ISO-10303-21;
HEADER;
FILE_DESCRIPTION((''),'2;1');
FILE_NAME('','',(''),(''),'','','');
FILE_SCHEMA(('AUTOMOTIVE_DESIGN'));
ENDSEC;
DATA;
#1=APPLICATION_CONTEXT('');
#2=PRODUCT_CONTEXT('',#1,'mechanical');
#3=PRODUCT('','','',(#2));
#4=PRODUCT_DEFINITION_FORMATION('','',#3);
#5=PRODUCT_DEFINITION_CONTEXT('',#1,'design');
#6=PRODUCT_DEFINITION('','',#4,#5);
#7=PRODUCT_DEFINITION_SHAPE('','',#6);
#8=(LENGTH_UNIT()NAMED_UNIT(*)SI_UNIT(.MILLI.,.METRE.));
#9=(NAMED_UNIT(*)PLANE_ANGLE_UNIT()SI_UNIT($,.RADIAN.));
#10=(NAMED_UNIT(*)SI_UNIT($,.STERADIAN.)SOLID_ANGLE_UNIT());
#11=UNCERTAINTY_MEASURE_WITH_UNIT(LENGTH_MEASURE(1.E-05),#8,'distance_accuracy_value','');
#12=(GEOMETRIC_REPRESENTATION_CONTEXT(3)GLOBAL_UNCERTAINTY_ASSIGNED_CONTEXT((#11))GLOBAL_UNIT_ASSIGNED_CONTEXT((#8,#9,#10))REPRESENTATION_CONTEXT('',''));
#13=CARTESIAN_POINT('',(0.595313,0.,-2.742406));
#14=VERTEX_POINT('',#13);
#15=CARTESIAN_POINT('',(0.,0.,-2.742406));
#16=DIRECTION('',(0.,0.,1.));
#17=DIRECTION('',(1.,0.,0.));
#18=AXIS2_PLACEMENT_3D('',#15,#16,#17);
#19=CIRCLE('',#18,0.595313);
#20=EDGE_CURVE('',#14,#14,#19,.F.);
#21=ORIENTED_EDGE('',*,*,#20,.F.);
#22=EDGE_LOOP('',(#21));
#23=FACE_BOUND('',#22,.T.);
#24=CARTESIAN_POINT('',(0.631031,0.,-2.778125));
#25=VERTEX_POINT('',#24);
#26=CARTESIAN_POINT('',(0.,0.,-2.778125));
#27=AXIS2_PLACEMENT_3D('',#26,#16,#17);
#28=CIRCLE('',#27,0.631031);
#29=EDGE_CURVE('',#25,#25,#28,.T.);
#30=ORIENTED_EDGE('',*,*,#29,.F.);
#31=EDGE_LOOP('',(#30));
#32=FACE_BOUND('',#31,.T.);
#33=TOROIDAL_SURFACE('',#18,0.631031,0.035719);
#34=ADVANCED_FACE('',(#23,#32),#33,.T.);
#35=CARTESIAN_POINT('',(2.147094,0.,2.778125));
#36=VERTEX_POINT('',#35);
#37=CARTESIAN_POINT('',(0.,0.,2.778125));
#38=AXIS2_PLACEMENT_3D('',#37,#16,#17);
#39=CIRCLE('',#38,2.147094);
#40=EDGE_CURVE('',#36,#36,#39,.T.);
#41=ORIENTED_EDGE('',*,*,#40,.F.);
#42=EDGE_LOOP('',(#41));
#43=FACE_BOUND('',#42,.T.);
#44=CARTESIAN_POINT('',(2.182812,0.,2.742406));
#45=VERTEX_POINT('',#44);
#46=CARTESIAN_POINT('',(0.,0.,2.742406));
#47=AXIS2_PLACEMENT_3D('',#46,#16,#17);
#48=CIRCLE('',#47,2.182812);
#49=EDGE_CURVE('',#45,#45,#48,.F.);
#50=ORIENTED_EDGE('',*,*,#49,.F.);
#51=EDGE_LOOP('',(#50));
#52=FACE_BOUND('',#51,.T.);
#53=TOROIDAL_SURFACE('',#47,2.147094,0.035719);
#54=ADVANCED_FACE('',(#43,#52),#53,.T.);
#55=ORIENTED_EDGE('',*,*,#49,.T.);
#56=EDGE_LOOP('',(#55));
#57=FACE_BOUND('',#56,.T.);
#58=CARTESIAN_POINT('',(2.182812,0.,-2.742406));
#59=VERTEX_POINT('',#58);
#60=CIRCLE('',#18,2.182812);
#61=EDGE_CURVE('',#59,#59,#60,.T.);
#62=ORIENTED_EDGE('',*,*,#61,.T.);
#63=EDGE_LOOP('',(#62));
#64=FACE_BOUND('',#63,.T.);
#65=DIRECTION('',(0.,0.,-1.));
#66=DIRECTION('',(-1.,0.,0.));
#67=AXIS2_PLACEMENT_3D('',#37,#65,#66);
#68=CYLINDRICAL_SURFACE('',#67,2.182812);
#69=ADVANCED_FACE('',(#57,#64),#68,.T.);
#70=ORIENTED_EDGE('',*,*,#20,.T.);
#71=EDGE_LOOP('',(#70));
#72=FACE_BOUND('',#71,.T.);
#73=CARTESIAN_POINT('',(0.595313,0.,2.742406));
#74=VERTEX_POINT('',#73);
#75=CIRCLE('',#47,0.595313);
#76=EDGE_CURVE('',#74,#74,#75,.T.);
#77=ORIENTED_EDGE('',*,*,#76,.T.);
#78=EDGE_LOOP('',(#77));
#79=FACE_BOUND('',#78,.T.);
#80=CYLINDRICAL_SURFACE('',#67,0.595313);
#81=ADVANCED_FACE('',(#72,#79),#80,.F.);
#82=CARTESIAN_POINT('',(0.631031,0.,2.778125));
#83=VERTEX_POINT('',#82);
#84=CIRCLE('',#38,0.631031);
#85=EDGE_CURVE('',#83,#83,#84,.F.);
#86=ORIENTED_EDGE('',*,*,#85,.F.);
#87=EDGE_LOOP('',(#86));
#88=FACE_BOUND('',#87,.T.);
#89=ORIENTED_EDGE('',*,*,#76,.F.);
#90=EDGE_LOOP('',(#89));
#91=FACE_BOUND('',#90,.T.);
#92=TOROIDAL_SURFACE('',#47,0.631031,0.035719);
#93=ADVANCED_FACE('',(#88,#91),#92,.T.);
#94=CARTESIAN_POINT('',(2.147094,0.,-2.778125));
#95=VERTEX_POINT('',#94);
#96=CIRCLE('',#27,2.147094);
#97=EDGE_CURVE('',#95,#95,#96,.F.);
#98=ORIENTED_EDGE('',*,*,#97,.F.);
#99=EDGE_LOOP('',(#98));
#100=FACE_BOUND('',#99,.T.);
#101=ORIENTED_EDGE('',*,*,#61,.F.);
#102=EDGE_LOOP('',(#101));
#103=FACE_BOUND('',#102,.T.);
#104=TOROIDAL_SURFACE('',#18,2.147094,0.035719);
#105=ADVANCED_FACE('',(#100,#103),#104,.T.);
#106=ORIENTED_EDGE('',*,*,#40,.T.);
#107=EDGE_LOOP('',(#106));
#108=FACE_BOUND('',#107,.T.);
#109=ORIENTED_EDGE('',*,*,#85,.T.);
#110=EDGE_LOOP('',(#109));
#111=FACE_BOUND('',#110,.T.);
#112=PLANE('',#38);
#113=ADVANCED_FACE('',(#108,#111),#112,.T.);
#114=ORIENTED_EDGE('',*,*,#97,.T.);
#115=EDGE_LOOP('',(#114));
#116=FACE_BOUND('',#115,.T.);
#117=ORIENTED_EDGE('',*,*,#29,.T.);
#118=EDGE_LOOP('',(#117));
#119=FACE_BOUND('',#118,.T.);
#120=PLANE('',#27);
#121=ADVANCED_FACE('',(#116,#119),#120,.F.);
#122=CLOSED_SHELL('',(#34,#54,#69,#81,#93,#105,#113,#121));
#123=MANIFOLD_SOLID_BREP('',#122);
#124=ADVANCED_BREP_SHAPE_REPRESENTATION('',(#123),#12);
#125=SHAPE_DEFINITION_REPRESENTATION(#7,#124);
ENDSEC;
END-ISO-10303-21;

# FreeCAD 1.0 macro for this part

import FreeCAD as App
import Part
import Sketcher
from FreeCAD import Vector
Q = App.Units.Quantity


def edges_at(feature, points):
    """Names of the edges that pass closest to the given points."""
    edges = feature.Shape.Edges
    near = lambda p: min(range(len(edges)), key=lambda i: edges[i].distToShape(Part.Vertex(*p))[0])
    return sorted({f"Edge{near(p) + 1}" for p in points})

doc = App.newDocument("Part")
params = doc.addObject("Spreadsheet::Sheet", "Params")
for row, (alias, value) in enumerate([
    ("sketch1_diameter", "0.171875 in"),
    ("sketch1_diameter2", "0.046875 in"),
    ("pad1_length", "0.109375 in"),
    ("pad1_length2", "0.109375 in"),
    ("fillet_radius", "0.035719 mm"),
], start=1):
    params.set(f"A{row}", alias)
    params.set(f"B{row}", "=" + value)
    params.setAlias(f"B{row}", alias)

body = doc.addObject("PartDesign::Body", "Body")

sketch1 = body.newObject("Sketcher::SketchObject", "Sketch")
sketch1.AttachmentSupport = (doc.getObject("XY_Plane"), [""])
sketch1.MapMode = "FlatFace"
sketch1.addGeometry(Part.Circle(Vector(0, 0, 0), Vector(0, 0, 1), 2.2), False)
sketch1.addGeometry(Part.Circle(Vector(0, 0, 0), Vector(0, 0, 1), 0.6), False)
sketch1.addConstraint(Sketcher.Constraint("Coincident", 0, 3, -1, 1))
sketch1.addConstraint(Sketcher.Constraint("Coincident", 1, 3, -1, 1))
sketch1.addConstraint(Sketcher.Constraint("Diameter", 0, Q("0.171875 in")))
sketch1.addConstraint(Sketcher.Constraint("Diameter", 1, Q("0.046875 in")))
sketch1.setExpression("Constraints[2]", "Params.sketch1_diameter")
sketch1.setExpression("Constraints[3]", "Params.sketch1_diameter2")
pad1 = body.newObject("PartDesign::Pad", "Pad")
pad1.Profile = sketch1
pad1.Type = "TwoLengths"
pad1.setExpression("Length", "Params.pad1_length")
pad1.setExpression("Length2", "Params.pad1_length2")
doc.recompute()

fillet = body.newObject("PartDesign::Fillet", "Fillet")
fillet.Base = (pad1, edges_at(pad1, [
    (-2.183, 0, 2.778),
    (-0.595, 0, 2.778),
    (-2.183, 0, -2.778),
    (-0.595, 0, -2.778),
]))
fillet.setExpression("Radius", "Params.fillet_radius")

doc.recompute()
